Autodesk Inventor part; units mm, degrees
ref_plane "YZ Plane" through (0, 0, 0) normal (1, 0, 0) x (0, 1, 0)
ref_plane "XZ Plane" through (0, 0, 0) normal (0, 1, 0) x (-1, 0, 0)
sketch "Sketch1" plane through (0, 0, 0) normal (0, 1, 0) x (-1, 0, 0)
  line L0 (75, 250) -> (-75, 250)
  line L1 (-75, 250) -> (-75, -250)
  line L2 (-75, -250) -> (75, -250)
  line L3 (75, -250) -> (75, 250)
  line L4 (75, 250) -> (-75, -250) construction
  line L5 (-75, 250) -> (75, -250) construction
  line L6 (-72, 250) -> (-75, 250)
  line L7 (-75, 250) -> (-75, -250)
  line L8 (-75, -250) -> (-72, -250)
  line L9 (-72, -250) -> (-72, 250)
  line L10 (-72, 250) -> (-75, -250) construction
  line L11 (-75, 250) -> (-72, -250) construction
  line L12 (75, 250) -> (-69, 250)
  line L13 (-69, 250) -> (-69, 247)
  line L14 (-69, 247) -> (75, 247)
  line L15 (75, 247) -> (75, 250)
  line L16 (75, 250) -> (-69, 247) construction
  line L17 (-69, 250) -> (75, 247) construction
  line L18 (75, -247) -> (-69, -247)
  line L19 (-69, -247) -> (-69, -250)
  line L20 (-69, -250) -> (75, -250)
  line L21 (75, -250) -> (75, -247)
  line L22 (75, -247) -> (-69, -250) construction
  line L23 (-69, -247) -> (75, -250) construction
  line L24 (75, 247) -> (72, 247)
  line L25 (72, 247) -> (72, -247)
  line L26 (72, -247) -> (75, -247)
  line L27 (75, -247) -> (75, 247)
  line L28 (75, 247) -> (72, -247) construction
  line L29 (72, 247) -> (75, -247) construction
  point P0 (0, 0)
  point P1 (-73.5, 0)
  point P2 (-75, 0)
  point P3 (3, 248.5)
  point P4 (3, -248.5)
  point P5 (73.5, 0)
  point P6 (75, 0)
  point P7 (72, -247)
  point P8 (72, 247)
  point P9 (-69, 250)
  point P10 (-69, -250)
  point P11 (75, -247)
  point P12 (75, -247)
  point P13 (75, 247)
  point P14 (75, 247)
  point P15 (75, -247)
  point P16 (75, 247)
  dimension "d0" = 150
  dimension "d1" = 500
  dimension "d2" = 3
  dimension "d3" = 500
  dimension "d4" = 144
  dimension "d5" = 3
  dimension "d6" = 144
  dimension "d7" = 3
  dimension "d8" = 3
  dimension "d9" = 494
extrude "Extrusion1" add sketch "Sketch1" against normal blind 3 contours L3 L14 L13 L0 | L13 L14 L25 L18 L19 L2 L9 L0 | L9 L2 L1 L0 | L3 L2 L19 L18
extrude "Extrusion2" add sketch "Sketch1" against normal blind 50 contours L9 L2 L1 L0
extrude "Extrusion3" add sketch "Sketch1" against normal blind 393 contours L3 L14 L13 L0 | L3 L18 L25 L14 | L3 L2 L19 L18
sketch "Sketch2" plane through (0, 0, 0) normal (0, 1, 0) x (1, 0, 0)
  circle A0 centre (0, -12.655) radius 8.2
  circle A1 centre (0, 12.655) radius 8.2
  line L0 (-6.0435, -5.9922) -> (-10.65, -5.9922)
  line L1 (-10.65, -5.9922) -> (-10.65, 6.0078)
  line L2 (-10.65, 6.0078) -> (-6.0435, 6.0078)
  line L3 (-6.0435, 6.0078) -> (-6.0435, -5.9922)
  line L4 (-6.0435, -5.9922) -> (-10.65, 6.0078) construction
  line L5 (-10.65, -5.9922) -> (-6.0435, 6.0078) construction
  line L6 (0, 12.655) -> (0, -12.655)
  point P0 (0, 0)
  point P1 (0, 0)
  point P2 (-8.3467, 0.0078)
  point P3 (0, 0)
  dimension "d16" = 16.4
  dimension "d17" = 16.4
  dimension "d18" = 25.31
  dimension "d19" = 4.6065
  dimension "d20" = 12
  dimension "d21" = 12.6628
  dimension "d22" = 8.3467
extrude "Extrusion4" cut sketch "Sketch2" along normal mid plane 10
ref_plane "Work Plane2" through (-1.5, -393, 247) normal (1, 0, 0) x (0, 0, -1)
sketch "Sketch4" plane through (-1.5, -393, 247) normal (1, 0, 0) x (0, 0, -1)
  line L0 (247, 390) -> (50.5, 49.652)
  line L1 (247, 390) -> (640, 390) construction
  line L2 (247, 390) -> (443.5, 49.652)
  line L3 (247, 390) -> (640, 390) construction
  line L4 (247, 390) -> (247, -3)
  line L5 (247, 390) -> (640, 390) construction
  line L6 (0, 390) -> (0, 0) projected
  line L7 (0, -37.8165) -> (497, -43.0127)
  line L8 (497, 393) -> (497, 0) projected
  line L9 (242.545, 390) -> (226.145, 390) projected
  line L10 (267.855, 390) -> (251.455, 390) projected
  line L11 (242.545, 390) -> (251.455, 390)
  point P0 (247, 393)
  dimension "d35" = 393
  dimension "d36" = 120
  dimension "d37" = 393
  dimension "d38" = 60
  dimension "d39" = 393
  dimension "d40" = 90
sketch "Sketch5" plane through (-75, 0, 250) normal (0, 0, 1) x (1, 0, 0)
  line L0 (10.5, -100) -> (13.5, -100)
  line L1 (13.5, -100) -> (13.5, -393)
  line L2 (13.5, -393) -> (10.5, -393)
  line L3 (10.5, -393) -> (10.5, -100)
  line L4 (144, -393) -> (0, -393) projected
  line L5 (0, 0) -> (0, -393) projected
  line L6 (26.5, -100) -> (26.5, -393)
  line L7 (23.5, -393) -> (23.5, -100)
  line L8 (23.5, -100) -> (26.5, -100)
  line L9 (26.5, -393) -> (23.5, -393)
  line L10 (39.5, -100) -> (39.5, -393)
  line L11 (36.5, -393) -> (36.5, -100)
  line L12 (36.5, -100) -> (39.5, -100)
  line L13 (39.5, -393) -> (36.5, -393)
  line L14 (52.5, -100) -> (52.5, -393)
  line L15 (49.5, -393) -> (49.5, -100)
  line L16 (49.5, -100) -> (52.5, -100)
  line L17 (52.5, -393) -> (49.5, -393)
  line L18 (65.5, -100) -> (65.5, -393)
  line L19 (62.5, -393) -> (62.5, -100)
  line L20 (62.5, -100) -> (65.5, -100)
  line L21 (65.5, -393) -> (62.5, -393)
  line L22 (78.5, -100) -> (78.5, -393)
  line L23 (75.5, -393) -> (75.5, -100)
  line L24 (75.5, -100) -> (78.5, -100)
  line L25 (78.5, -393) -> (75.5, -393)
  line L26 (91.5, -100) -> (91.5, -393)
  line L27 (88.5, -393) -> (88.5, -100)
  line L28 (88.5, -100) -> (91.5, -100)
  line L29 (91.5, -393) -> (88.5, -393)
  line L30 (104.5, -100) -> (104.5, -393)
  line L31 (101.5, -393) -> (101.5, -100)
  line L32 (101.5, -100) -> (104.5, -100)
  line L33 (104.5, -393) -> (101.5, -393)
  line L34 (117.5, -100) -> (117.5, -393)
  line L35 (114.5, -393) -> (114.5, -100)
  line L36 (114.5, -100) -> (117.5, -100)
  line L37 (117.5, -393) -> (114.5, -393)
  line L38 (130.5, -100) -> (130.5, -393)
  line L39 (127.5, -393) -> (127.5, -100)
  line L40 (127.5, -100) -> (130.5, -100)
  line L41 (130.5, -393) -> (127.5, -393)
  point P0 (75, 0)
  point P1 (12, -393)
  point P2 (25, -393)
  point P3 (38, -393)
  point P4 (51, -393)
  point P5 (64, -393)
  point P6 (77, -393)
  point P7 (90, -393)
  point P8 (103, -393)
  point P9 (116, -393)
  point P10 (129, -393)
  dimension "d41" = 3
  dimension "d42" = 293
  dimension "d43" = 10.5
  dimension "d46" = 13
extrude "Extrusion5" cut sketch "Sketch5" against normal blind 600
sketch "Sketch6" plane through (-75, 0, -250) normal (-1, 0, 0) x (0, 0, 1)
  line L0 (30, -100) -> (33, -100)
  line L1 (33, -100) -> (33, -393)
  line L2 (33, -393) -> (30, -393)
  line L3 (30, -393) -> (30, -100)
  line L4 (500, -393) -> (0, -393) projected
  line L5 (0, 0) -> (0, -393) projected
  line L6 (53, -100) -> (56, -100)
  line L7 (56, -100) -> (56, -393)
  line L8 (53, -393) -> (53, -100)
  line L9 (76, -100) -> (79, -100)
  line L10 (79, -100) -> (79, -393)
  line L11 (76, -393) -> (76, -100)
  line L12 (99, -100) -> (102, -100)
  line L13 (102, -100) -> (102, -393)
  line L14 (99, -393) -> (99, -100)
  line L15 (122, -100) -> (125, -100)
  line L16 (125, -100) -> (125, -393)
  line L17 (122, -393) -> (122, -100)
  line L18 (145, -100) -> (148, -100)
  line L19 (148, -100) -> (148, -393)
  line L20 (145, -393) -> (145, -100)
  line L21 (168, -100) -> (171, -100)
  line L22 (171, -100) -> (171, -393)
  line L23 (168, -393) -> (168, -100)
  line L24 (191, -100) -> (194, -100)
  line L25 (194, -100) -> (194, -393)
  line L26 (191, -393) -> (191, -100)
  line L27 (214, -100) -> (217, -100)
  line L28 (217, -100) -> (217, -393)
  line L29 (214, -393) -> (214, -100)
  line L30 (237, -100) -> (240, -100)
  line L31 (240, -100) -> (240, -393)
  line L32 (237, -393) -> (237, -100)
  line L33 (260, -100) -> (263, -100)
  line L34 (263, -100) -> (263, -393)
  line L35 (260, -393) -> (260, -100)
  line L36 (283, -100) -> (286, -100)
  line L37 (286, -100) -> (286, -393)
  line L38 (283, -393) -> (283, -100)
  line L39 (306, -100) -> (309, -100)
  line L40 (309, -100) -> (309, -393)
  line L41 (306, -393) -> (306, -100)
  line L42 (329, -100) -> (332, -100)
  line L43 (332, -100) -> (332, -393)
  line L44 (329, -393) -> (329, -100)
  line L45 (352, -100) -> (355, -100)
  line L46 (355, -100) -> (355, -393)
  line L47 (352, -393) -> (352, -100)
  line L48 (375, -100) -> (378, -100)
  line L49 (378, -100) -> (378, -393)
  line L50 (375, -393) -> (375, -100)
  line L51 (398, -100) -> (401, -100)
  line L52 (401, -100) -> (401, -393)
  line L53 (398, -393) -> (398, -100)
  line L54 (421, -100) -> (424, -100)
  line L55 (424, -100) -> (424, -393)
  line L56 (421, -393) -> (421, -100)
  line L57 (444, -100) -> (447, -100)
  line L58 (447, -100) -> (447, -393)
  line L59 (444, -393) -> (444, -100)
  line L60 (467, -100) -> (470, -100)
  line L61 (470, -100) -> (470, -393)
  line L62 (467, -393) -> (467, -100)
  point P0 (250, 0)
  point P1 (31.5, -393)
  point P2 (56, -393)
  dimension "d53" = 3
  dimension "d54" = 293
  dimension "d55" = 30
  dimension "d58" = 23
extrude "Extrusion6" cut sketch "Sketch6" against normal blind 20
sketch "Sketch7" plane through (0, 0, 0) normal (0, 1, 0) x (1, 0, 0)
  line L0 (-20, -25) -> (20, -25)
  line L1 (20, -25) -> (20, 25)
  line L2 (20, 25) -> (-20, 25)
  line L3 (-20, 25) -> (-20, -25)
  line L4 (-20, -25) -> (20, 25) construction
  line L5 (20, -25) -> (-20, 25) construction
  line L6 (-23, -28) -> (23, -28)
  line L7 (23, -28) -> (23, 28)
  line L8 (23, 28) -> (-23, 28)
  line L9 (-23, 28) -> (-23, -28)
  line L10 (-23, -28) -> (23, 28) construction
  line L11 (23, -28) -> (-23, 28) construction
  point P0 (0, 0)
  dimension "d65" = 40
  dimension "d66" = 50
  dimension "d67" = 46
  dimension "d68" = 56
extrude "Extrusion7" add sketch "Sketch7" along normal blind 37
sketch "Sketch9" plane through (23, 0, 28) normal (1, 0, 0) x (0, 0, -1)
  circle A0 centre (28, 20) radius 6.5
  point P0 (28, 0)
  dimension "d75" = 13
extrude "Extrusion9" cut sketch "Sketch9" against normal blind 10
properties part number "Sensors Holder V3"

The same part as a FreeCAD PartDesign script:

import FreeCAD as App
import Part
import Sketcher
from FreeCAD import Vector


def add_polygon(sketch, points):
    """Adds a closed chain of lines whose ends are joined by coincident constraints."""
    first, n = sketch.GeometryCount, len(points)
    for a, b in zip(points, points[1:] + points[:1]):
        sketch.addGeometry(Part.LineSegment(App.Vector(*a, 0), App.Vector(*b, 0)), False)
    for i in range(n):
        sketch.addConstraint(Sketcher.Constraint("Coincident", first + i, 2, first + (i + 1) % n, 1))

doc = App.newDocument("Part")
params = doc.addObject("Spreadsheet::Sheet", "Params")
for row, (alias, value) in enumerate([
    ("sketch1_width", "150 mm"),
    ("sketch1_width2", "3 mm"),
    ("sketch1_height", "500 mm"),
    ("pad1_length", "3 mm"),
    ("sketch2_width", "3 mm"),
    ("sketch2_height", "500 mm"),
    ("pad2_length", "50 mm"),
    ("sketch3_width", "144 mm"),
    ("sketch3_height", "3 mm"),
    ("sketch3_height2", "494 mm"),
    ("pad3_length", "393 mm"),
    ("sketch4_diameter", "16.4 mm"),
    ("sketch4_height", "12 mm"),
    ("pocket1_length", "10 mm"),
    ("sketch5_width", "3 mm"),
    ("sketch5_height", "293 mm"),
    ("pocket2_length", "600 mm"),
    ("sketch6_width", "293 mm"),
    ("sketch6_height", "3 mm"),
    ("pocket3_length", "20 mm"),
    ("sketch7_width", "46 mm"),
    ("sketch7_width2", "40 mm"),
    ("sketch7_height", "56 mm"),
    ("sketch7_height2", "50 mm"),
    ("pad4_length", "37 mm"),
    ("sketch8_diameter", "13 mm"),
    ("pocket4_length", "10 mm"),
], start=1):
    params.set(f"A{row}", alias)
    params.set(f"B{row}", "=" + value)
    params.setAlias(f"B{row}", alias)

body = doc.addObject("PartDesign::Body", "Body")

# Sketch on XZ plane
sketch1 = doc.addObject("Sketcher::SketchObject", "Sketch")
body.addObject(sketch1)
sketch1.AttachmentSupport = (doc.XZ_Plane, [""])
sketch1.MapMode = "FlatFace"
add_polygon(sketch1, [(-75, 247), (-75, 250), (75, 250), (75, -250), (-75, -250), (-75, -247), (-72, -247), (-72, 247)])  # lines 0-7
sketch1.addConstraint(Sketcher.Constraint("Vertical", 0))
sketch1.addConstraint(Sketcher.Constraint("Horizontal", 1))
sketch1.addConstraint(Sketcher.Constraint("Vertical", 2))
sketch1.addConstraint(Sketcher.Constraint("Horizontal", 3))
sketch1.addConstraint(Sketcher.Constraint("Vertical", 4))
sketch1.addConstraint(Sketcher.Constraint("Horizontal", 5))
sketch1.addConstraint(Sketcher.Constraint("Vertical", 6))
sketch1.addConstraint(Sketcher.Constraint("Horizontal", 7))
sketch1.addConstraint(Sketcher.Constraint("Symmetric", 0, 2, 2, 2, -1, 1))
sketch1.addConstraint(Sketcher.Constraint("Symmetric", 4, 2, 7, 2, -1))
sketch1.addConstraint(Sketcher.Constraint("Equal", 7, 0))
sketch1.addConstraint(Sketcher.Constraint("DistanceX", 1, 1, 1, 2, 150.0))
sketch1.addConstraint(Sketcher.Constraint("DistanceX", 5, 1, 5, 2, 3.0))
sketch1.addConstraint(Sketcher.Constraint("DistanceY", 2, 2, 2, 1, 500.0))
sketch1.setExpression("Constraints[19]", "Params.sketch1_width")
sketch1.setExpression("Constraints[20]", "Params.sketch1_width2")
sketch1.setExpression("Constraints[21]", "Params.sketch1_height")
pad1 = doc.addObject("PartDesign::Pad", "Pad")
body.addObject(pad1)
pad1.Profile = sketch1
pad1.setExpression("Length", "Params.pad1_length")

# Sketch on XZ plane
sketch2 = doc.addObject("Sketcher::SketchObject", "Sketch001")
body.addObject(sketch2)
sketch2.AttachmentSupport = (doc.XZ_Plane, [""])
sketch2.MapMode = "FlatFace"
add_polygon(sketch2, [(72, -250), (72, 250), (75, 250), (75, -250)])  # lines 0-3
sketch2.addConstraint(Sketcher.Constraint("Vertical", 0))
sketch2.addConstraint(Sketcher.Constraint("Horizontal", 1))
sketch2.addConstraint(Sketcher.Constraint("Vertical", 2))
sketch2.addConstraint(Sketcher.Constraint("Horizontal", 3))
sketch2.addConstraint(Sketcher.Constraint("DistanceX", 1, 1, 1, 2, 3.0))
sketch2.addConstraint(Sketcher.Constraint("DistanceY", 0, 1, 0, 2, 500.0))
sketch2.addConstraint(Sketcher.Constraint("DistanceX", -1, 1, 0, 2, 72.0))
sketch2.addConstraint(Sketcher.Constraint("DistanceY", -1, 1, 0, 2, 250.0))
sketch2.setExpression("Constraints[8]", "Params.sketch2_width")
sketch2.setExpression("Constraints[9]", "Params.sketch2_height")
pad2 = doc.addObject("PartDesign::Pad", "Pad001")
body.addObject(pad2)
pad2.Profile = sketch2
pad2.setExpression("Length", "Params.pad2_length")

# Sketch on XZ plane
sketch3 = doc.addObject("Sketcher::SketchObject", "Sketch002")
body.addObject(sketch3)
sketch3.AttachmentSupport = (doc.XZ_Plane, [""])
sketch3.MapMode = "FlatFace"
add_polygon(sketch3, [(-75, 250), (69, 250), (69, 247), (-72, 247), (-72, -247), (69, -247), (69, -250), (-75, -250)])  # lines 0-7
sketch3.addConstraint(Sketcher.Constraint("Horizontal", 0))
sketch3.addConstraint(Sketcher.Constraint("Vertical", 1))
sketch3.addConstraint(Sketcher.Constraint("Horizontal", 2))
sketch3.addConstraint(Sketcher.Constraint("Vertical", 3))
sketch3.addConstraint(Sketcher.Constraint("Horizontal", 4))
sketch3.addConstraint(Sketcher.Constraint("Vertical", 5))
sketch3.addConstraint(Sketcher.Constraint("Horizontal", 6))
sketch3.addConstraint(Sketcher.Constraint("Vertical", 7))
sketch3.addConstraint(Sketcher.Constraint("Symmetric", 1, 2, 4, 2, -1))
sketch3.addConstraint(Sketcher.Constraint("Equal", 1, 5))
sketch3.addConstraint(Sketcher.Constraint("DistanceX", 0, 1, 0, 2, 144.0))
sketch3.addConstraint(Sketcher.Constraint("DistanceY", 1, 2, 1, 1, 3.0))
sketch3.addConstraint(Sketcher.Constraint("DistanceY", 3, 2, 3, 1, 494.0))
sketch3.addConstraint(Sketcher.Constraint("DistanceX", 6, 2, 3, 2, 3.0))
sketch3.addConstraint(Sketcher.Constraint("DistanceX", -1, 1, 0, 2, 69.0))
sketch3.setExpression("Constraints[18]", "Params.sketch3_width")
sketch3.setExpression("Constraints[19]", "Params.sketch3_height")
sketch3.setExpression("Constraints[20]", "Params.sketch3_height2")
pad3 = doc.addObject("PartDesign::Pad", "Pad002")
body.addObject(pad3)
pad3.Profile = sketch3
pad3.setExpression("Length", "Params.pad3_length")

# Sketch on XZ plane
sketch4 = doc.addObject("Sketcher::SketchObject", "Sketch003")
body.addObject(sketch4)
sketch4.AttachmentSupport = (doc.XZ_Plane, [""])
sketch4.MapMode = "FlatFace"
sketch4.addGeometry(Part.Circle(Vector(0, 12.7, 0), Vector(0, 0, 1), 8.2), False)  # 0
sketch4.addGeometry(Part.Circle(Vector(0, -12.7, 0), Vector(0, 0, 1), 8.2), False)  # 1
add_polygon(sketch4, [(-10.7, 6), (-6, 6), (-6, -6), (-10.7, -6)])  # lines 2-5
sketch4.addConstraint(Sketcher.Constraint("Horizontal", 2))
sketch4.addConstraint(Sketcher.Constraint("Vertical", 3))
sketch4.addConstraint(Sketcher.Constraint("Horizontal", 4))
sketch4.addConstraint(Sketcher.Constraint("Vertical", 5))
sketch4.addConstraint(Sketcher.Constraint("Equal", 0, 1))
sketch4.addConstraint(Sketcher.Constraint("Symmetric", 0, 3, 1, 3, -1, 1))
sketch4.addConstraint(Sketcher.Constraint("PointOnObject", 0, 3, -2))
sketch4.addConstraint(Sketcher.Constraint("Diameter", 0, 16.4))
sketch4.addConstraint(Sketcher.Constraint("DistanceY", 3, 2, 3, 1, 12.0))
sketch4.addConstraint(Sketcher.Constraint("DistanceY", 1, 3, 0, 3, 25.31))
sketch4.addConstraint(Sketcher.Constraint("DistanceX", 2, 1, 2, 2, 4.6065))
sketch4.addConstraint(Sketcher.Constraint("DistanceX", 4, 2, -1, 1, 10.65))
sketch4.addConstraint(Sketcher.Constraint("DistanceY", -1, 1, 2, 2, 5.9922))
sketch4.setExpression("Constraints[11]", "Params.sketch4_diameter")
sketch4.setExpression("Constraints[12]", "Params.sketch4_height")
pocket1 = doc.addObject("PartDesign::Pocket", "Pocket")
body.addObject(pocket1)
pocket1.Profile = sketch4
pocket1.setExpression("Length", "Params.pocket1_length")
pocket1.Midplane = True

# Sketch on XY plane
sketch5 = doc.addObject("Sketcher::SketchObject", "Sketch004")
body.addObject(sketch5)
sketch5.AttachmentSupport = (doc.XY_Plane, [""])
sketch5.MapMode = "FlatFace"
sketch5.AttachmentOffset = App.Placement(Vector(0, 0, 250), App.Rotation())
add_polygon(sketch5, [(52.5, -100), (52.5, -393), (55.5, -393), (55.5, -100)])  # lines 0-3
add_polygon(sketch5, [(39.5, -100), (39.5, -393), (42.5, -393), (42.5, -100)])  # lines 4-7
add_polygon(sketch5, [(26.5, -100), (26.5, -393), (29.5, -393), (29.5, -100)])  # lines 8-11
add_polygon(sketch5, [(13.5, -100), (13.5, -393), (16.5, -393), (16.5, -100)])  # lines 12-15
add_polygon(sketch5, [(0.5, -100), (0.5, -393), (3.5, -393), (3.5, -100)])  # lines 16-19
add_polygon(sketch5, [(-12.5, -100), (-12.5, -393), (-9.5, -393), (-9.5, -100)])  # lines 20-23
add_polygon(sketch5, [(-25.5, -100), (-25.5, -393), (-22.5, -393), (-22.5, -100)])  # lines 24-27
add_polygon(sketch5, [(-38.5, -100), (-38.5, -393), (-35.5, -393), (-35.5, -100)])  # lines 28-31
add_polygon(sketch5, [(-51.5, -100), (-51.5, -393), (-48.5, -393), (-48.5, -100)])  # lines 32-35
add_polygon(sketch5, [(-61.5, -100), (-64.5, -100), (-64.5, -393), (-61.5, -393)])  # lines 36-39
sketch5.addConstraint(Sketcher.Constraint("Vertical", 0))
sketch5.addConstraint(Sketcher.Constraint("Horizontal", 1))
sketch5.addConstraint(Sketcher.Constraint("Vertical", 2))
sketch5.addConstraint(Sketcher.Constraint("Horizontal", 3))
sketch5.addConstraint(Sketcher.Constraint("Vertical", 4))
sketch5.addConstraint(Sketcher.Constraint("Horizontal", 5))
sketch5.addConstraint(Sketcher.Constraint("Vertical", 6))
sketch5.addConstraint(Sketcher.Constraint("Horizontal", 7))
sketch5.addConstraint(Sketcher.Constraint("Vertical", 8))
sketch5.addConstraint(Sketcher.Constraint("Horizontal", 9))
sketch5.addConstraint(Sketcher.Constraint("Vertical", 10))
sketch5.addConstraint(Sketcher.Constraint("Horizontal", 11))
sketch5.addConstraint(Sketcher.Constraint("Vertical", 12))
sketch5.addConstraint(Sketcher.Constraint("Horizontal", 13))
sketch5.addConstraint(Sketcher.Constraint("Vertical", 14))
sketch5.addConstraint(Sketcher.Constraint("Horizontal", 15))
sketch5.addConstraint(Sketcher.Constraint("Vertical", 16))
sketch5.addConstraint(Sketcher.Constraint("Horizontal", 17))
sketch5.addConstraint(Sketcher.Constraint("Vertical", 18))
sketch5.addConstraint(Sketcher.Constraint("Horizontal", 19))
sketch5.addConstraint(Sketcher.Constraint("Vertical", 20))
sketch5.addConstraint(Sketcher.Constraint("Horizontal", 21))
sketch5.addConstraint(Sketcher.Constraint("Vertical", 22))
sketch5.addConstraint(Sketcher.Constraint("Horizontal", 23))
sketch5.addConstraint(Sketcher.Constraint("Vertical", 24))
sketch5.addConstraint(Sketcher.Constraint("Horizontal", 25))
sketch5.addConstraint(Sketcher.Constraint("Vertical", 26))
sketch5.addConstraint(Sketcher.Constraint("Horizontal", 27))
sketch5.addConstraint(Sketcher.Constraint("Vertical", 28))
sketch5.addConstraint(Sketcher.Constraint("Horizontal", 29))
sketch5.addConstraint(Sketcher.Constraint("Vertical", 30))
sketch5.addConstraint(Sketcher.Constraint("Horizontal", 31))
sketch5.addConstraint(Sketcher.Constraint("Vertical", 32))
sketch5.addConstraint(Sketcher.Constraint("Horizontal", 33))
sketch5.addConstraint(Sketcher.Constraint("Vertical", 34))
sketch5.addConstraint(Sketcher.Constraint("Horizontal", 35))
sketch5.addConstraint(Sketcher.Constraint("Horizontal", 36))
sketch5.addConstraint(Sketcher.Constraint("Vertical", 37))
sketch5.addConstraint(Sketcher.Constraint("Horizontal", 38))
sketch5.addConstraint(Sketcher.Constraint("Vertical", 39))
sketch5.addConstraint(Sketcher.Constraint("Horizontal", 1, 2, 4, 2))
sketch5.addConstraint(Sketcher.Constraint("Horizontal", 3, 2, 6, 2))
sketch5.addConstraint(Sketcher.Constraint("Horizontal", 5, 2, 8, 2))
sketch5.addConstraint(Sketcher.Constraint("Horizontal", 7, 2, 10, 2))
sketch5.addConstraint(Sketcher.Constraint("Horizontal", 9, 2, 12, 2))
sketch5.addConstraint(Sketcher.Constraint("Horizontal", 11, 2, 14, 2))
sketch5.addConstraint(Sketcher.Constraint("Horizontal", 13, 2, 16, 2))
sketch5.addConstraint(Sketcher.Constraint("Horizontal", 15, 2, 18, 2))
sketch5.addConstraint(Sketcher.Constraint("Horizontal", 17, 2, 20, 2))
sketch5.addConstraint(Sketcher.Constraint("Horizontal", 19, 2, 22, 2))
sketch5.addConstraint(Sketcher.Constraint("Horizontal", 21, 2, 24, 2))
sketch5.addConstraint(Sketcher.Constraint("Horizontal", 23, 2, 26, 2))
sketch5.addConstraint(Sketcher.Constraint("Horizontal", 25, 2, 28, 2))
sketch5.addConstraint(Sketcher.Constraint("Horizontal", 27, 2, 30, 2))
sketch5.addConstraint(Sketcher.Constraint("Horizontal", 29, 2, 32, 2))
sketch5.addConstraint(Sketcher.Constraint("Horizontal", 31, 2, 34, 2))
sketch5.addConstraint(Sketcher.Constraint("Horizontal", 35, 2, 36, 2))
sketch5.addConstraint(Sketcher.Constraint("Horizontal", 33, 2, 37, 2))
sketch5.addConstraint(Sketcher.Constraint("Equal", 3, 5))
sketch5.addConstraint(Sketcher.Constraint("Equal", 7, 9))
sketch5.addConstraint(Sketcher.Constraint("Equal", 11, 13))
sketch5.addConstraint(Sketcher.Constraint("Equal", 15, 17))
sketch5.addConstraint(Sketcher.Constraint("Equal", 19, 21))
sketch5.addConstraint(Sketcher.Constraint("Equal", 23, 25))
sketch5.addConstraint(Sketcher.Constraint("Equal", 27, 29))
sketch5.addConstraint(Sketcher.Constraint("Equal", 31, 33))
sketch5.addConstraint(Sketcher.Constraint("Equal", 35, 36))
sketch5.addConstraint(Sketcher.Constraint("DistanceX", 1, 1, 1, 2, 3.0))
sketch5.addConstraint(Sketcher.Constraint("DistanceY", 0, 2, 0, 1, 293.0))
sketch5.addConstraint(Sketcher.Constraint("DistanceX", 4, 2, 0, 2, 13.0))
sketch5.addConstraint(Sketcher.Constraint("DistanceX", 8, 2, 4, 2, 13.0))
sketch5.addConstraint(Sketcher.Constraint("DistanceX", 12, 2, 8, 2, 13.0))
sketch5.addConstraint(Sketcher.Constraint("DistanceX", 16, 2, 12, 2, 13.0))
sketch5.addConstraint(Sketcher.Constraint("DistanceX", 20, 2, 16, 2, 13.0))
sketch5.addConstraint(Sketcher.Constraint("DistanceX", 24, 2, 20, 2, 13.0))
sketch5.addConstraint(Sketcher.Constraint("DistanceX", 28, 2, 24, 2, 13.0))
sketch5.addConstraint(Sketcher.Constraint("DistanceX", 32, 2, 28, 2, 13.0))
sketch5.addConstraint(Sketcher.Constraint("DistanceX", 36, 2, 35, 2, 13.0))
sketch5.addConstraint(Sketcher.Constraint("DistanceY", 0, 2, -1, 1, 393.0))
sketch5.addConstraint(Sketcher.Constraint("DistanceX", -1, 1, 0, 2, 52.5))
sketch5.setExpression("Constraints[107]", "Params.sketch5_width")
sketch5.setExpression("Constraints[108]", "Params.sketch5_height")
pocket2 = doc.addObject("PartDesign::Pocket", "Pocket001")
body.addObject(pocket2)
pocket2.Profile = sketch5
pocket2.setExpression("Length", "Params.pocket2_length")

# Sketch on YZ plane
sketch6 = doc.addObject("Sketcher::SketchObject", "Sketch005")
body.addObject(sketch6)
sketch6.AttachmentSupport = (doc.YZ_Plane, [""])
sketch6.MapMode = "FlatFace"
sketch6.AttachmentOffset = App.Placement(Vector(0, 0, -75), App.Rotation())
add_polygon(sketch6, [(-100, 217), (-393, 217), (-393, 220), (-100, 220)])  # lines 0-3
add_polygon(sketch6, [(-100, 194), (-393, 194), (-393, 197), (-100, 197)])  # lines 4-7
add_polygon(sketch6, [(-100, 171), (-393, 171), (-393, 174), (-100, 174)])  # lines 8-11
add_polygon(sketch6, [(-100, 148), (-393, 148), (-393, 151), (-100, 151)])  # lines 12-15
add_polygon(sketch6, [(-100, 125), (-393, 125), (-393, 128), (-100, 128)])  # lines 16-19
add_polygon(sketch6, [(-100, 102), (-393, 102), (-393, 105), (-100, 105)])  # lines 20-23
add_polygon(sketch6, [(-100, 79), (-393, 79), (-393, 82), (-100, 82)])  # lines 24-27
add_polygon(sketch6, [(-100, 56), (-393, 56), (-393, 59), (-100, 59)])  # lines 28-31
add_polygon(sketch6, [(-100, 33), (-393, 33), (-393, 36), (-100, 36)])  # lines 32-35
add_polygon(sketch6, [(-100, 10), (-393, 10), (-393, 13), (-100, 13)])  # lines 36-39
add_polygon(sketch6, [(-100, -13), (-393, -13), (-393, -10), (-100, -10)])  # lines 40-43
add_polygon(sketch6, [(-100, -36), (-393, -36), (-393, -33), (-100, -33)])  # lines 44-47
add_polygon(sketch6, [(-100, -59), (-393, -59), (-393, -56), (-100, -56)])  # lines 48-51
add_polygon(sketch6, [(-100, -82), (-393, -82), (-393, -79), (-100, -79)])  # lines 52-55
add_polygon(sketch6, [(-100, -105), (-393, -105), (-393, -102), (-100, -102)])  # lines 56-59
add_polygon(sketch6, [(-100, -128), (-393, -128), (-393, -125), (-100, -125)])  # lines 60-63
add_polygon(sketch6, [(-100, -151), (-393, -151), (-393, -148), (-100, -148)])  # lines 64-67
add_polygon(sketch6, [(-100, -174), (-393, -174), (-393, -171), (-100, -171)])  # lines 68-71
add_polygon(sketch6, [(-100, -197), (-393, -197), (-393, -194), (-100, -194)])  # lines 72-75
add_polygon(sketch6, [(-100, -217), (-100, -220), (-393, -220), (-393, -217)])  # lines 76-79
sketch6.addConstraint(Sketcher.Constraint("Horizontal", 0))
sketch6.addConstraint(Sketcher.Constraint("Vertical", 1))
sketch6.addConstraint(Sketcher.Constraint("Horizontal", 2))
sketch6.addConstraint(Sketcher.Constraint("Vertical", 3))
sketch6.addConstraint(Sketcher.Constraint("Horizontal", 4))
sketch6.addConstraint(Sketcher.Constraint("Vertical", 5))
sketch6.addConstraint(Sketcher.Constraint("Horizontal", 6))
sketch6.addConstraint(Sketcher.Constraint("Vertical", 7))
sketch6.addConstraint(Sketcher.Constraint("Horizontal", 8))
sketch6.addConstraint(Sketcher.Constraint("Vertical", 9))
sketch6.addConstraint(Sketcher.Constraint("Horizontal", 10))
sketch6.addConstraint(Sketcher.Constraint("Vertical", 11))
sketch6.addConstraint(Sketcher.Constraint("Horizontal", 12))
sketch6.addConstraint(Sketcher.Constraint("Vertical", 13))
sketch6.addConstraint(Sketcher.Constraint("Horizontal", 14))
sketch6.addConstraint(Sketcher.Constraint("Vertical", 15))
sketch6.addConstraint(Sketcher.Constraint("Horizontal", 16))
sketch6.addConstraint(Sketcher.Constraint("Vertical", 17))
sketch6.addConstraint(Sketcher.Constraint("Horizontal", 18))
sketch6.addConstraint(Sketcher.Constraint("Vertical", 19))
sketch6.addConstraint(Sketcher.Constraint("Horizontal", 20))
sketch6.addConstraint(Sketcher.Constraint("Vertical", 21))
sketch6.addConstraint(Sketcher.Constraint("Horizontal", 22))
sketch6.addConstraint(Sketcher.Constraint("Vertical", 23))
sketch6.addConstraint(Sketcher.Constraint("Horizontal", 24))
sketch6.addConstraint(Sketcher.Constraint("Vertical", 25))
sketch6.addConstraint(Sketcher.Constraint("Horizontal", 26))
sketch6.addConstraint(Sketcher.Constraint("Vertical", 27))
sketch6.addConstraint(Sketcher.Constraint("Horizontal", 28))
sketch6.addConstraint(Sketcher.Constraint("Vertical", 29))
sketch6.addConstraint(Sketcher.Constraint("Horizontal", 30))
sketch6.addConstraint(Sketcher.Constraint("Vertical", 31))
sketch6.addConstraint(Sketcher.Constraint("Horizontal", 32))
sketch6.addConstraint(Sketcher.Constraint("Vertical", 33))
sketch6.addConstraint(Sketcher.Constraint("Horizontal", 34))
sketch6.addConstraint(Sketcher.Constraint("Vertical", 35))
sketch6.addConstraint(Sketcher.Constraint("Horizontal", 36))
sketch6.addConstraint(Sketcher.Constraint("Vertical", 37))
sketch6.addConstraint(Sketcher.Constraint("Horizontal", 38))
sketch6.addConstraint(Sketcher.Constraint("Vertical", 39))
sketch6.addConstraint(Sketcher.Constraint("Horizontal", 40))
sketch6.addConstraint(Sketcher.Constraint("Vertical", 41))
sketch6.addConstraint(Sketcher.Constraint("Horizontal", 42))
sketch6.addConstraint(Sketcher.Constraint("Vertical", 43))
sketch6.addConstraint(Sketcher.Constraint("Horizontal", 44))
sketch6.addConstraint(Sketcher.Constraint("Vertical", 45))
sketch6.addConstraint(Sketcher.Constraint("Horizontal", 46))
sketch6.addConstraint(Sketcher.Constraint("Vertical", 47))
sketch6.addConstraint(Sketcher.Constraint("Horizontal", 48))
sketch6.addConstraint(Sketcher.Constraint("Vertical", 49))
sketch6.addConstraint(Sketcher.Constraint("Horizontal", 50))
sketch6.addConstraint(Sketcher.Constraint("Vertical", 51))
sketch6.addConstraint(Sketcher.Constraint("Horizontal", 52))
sketch6.addConstraint(Sketcher.Constraint("Vertical", 53))
sketch6.addConstraint(Sketcher.Constraint("Horizontal", 54))
sketch6.addConstraint(Sketcher.Constraint("Vertical", 55))
sketch6.addConstraint(Sketcher.Constraint("Horizontal", 56))
sketch6.addConstraint(Sketcher.Constraint("Vertical", 57))
sketch6.addConstraint(Sketcher.Constraint("Horizontal", 58))
sketch6.addConstraint(Sketcher.Constraint("Vertical", 59))
sketch6.addConstraint(Sketcher.Constraint("Horizontal", 60))
sketch6.addConstraint(Sketcher.Constraint("Vertical", 61))
sketch6.addConstraint(Sketcher.Constraint("Horizontal", 62))
sketch6.addConstraint(Sketcher.Constraint("Vertical", 63))
sketch6.addConstraint(Sketcher.Constraint("Horizontal", 64))
sketch6.addConstraint(Sketcher.Constraint("Vertical", 65))
sketch6.addConstraint(Sketcher.Constraint("Horizontal", 66))
sketch6.addConstraint(Sketcher.Constraint("Vertical", 67))
sketch6.addConstraint(Sketcher.Constraint("Horizontal", 68))
sketch6.addConstraint(Sketcher.Constraint("Vertical", 69))
sketch6.addConstraint(Sketcher.Constraint("Horizontal", 70))
sketch6.addConstraint(Sketcher.Constraint("Vertical", 71))
sketch6.addConstraint(Sketcher.Constraint("Horizontal", 72))
sketch6.addConstraint(Sketcher.Constraint("Vertical", 73))
sketch6.addConstraint(Sketcher.Constraint("Horizontal", 74))
sketch6.addConstraint(Sketcher.Constraint("Vertical", 75))
sketch6.addConstraint(Sketcher.Constraint("Vertical", 76))
sketch6.addConstraint(Sketcher.Constraint("Horizontal", 77))
sketch6.addConstraint(Sketcher.Constraint("Vertical", 78))
sketch6.addConstraint(Sketcher.Constraint("Horizontal", 79))
sketch6.addConstraint(Sketcher.Constraint("Symmetric", 37, 2, 40, 2, -1))
sketch6.addConstraint(Sketcher.Constraint("Symmetric", 39, 2, 42, 2, -1))
sketch6.addConstraint(Sketcher.Constraint("Symmetric", 33, 2, 44, 2, -1))
sketch6.addConstraint(Sketcher.Constraint("Symmetric", 35, 2, 46, 2, -1))
sketch6.addConstraint(Sketcher.Constraint("Symmetric", 29, 2, 48, 2, -1))
sketch6.addConstraint(Sketcher.Constraint("Symmetric", 31, 2, 50, 2, -1))
sketch6.addConstraint(Sketcher.Constraint("Symmetric", 25, 2, 52, 2, -1))
sketch6.addConstraint(Sketcher.Constraint("Symmetric", 27, 2, 54, 2, -1))
sketch6.addConstraint(Sketcher.Constraint("Symmetric", 21, 2, 56, 2, -1))
sketch6.addConstraint(Sketcher.Constraint("Symmetric", 23, 2, 58, 2, -1))
sketch6.addConstraint(Sketcher.Constraint("Symmetric", 17, 2, 60, 2, -1))
sketch6.addConstraint(Sketcher.Constraint("Symmetric", 19, 2, 62, 2, -1))
sketch6.addConstraint(Sketcher.Constraint("Symmetric", 13, 2, 64, 2, -1))
sketch6.addConstraint(Sketcher.Constraint("Symmetric", 15, 2, 66, 2, -1))
sketch6.addConstraint(Sketcher.Constraint("Symmetric", 9, 2, 68, 2, -1))
sketch6.addConstraint(Sketcher.Constraint("Symmetric", 11, 2, 70, 2, -1))
sketch6.addConstraint(Sketcher.Constraint("Symmetric", 5, 2, 72, 2, -1))
sketch6.addConstraint(Sketcher.Constraint("Symmetric", 7, 2, 74, 2, -1))
sketch6.addConstraint(Sketcher.Constraint("Symmetric", 2, 2, 76, 2, -1))
sketch6.addConstraint(Sketcher.Constraint("Symmetric", 0, 2, 78, 2, -1))
sketch6.addConstraint(Sketcher.Constraint("Vertical", 1, 2, 4, 2))
sketch6.addConstraint(Sketcher.Constraint("Vertical", 3, 2, 6, 2))
sketch6.addConstraint(Sketcher.Constraint("Vertical", 5, 2, 8, 2))
sketch6.addConstraint(Sketcher.Constraint("Vertical", 7, 2, 10, 2))
sketch6.addConstraint(Sketcher.Constraint("Vertical", 9, 2, 12, 2))
sketch6.addConstraint(Sketcher.Constraint("Vertical", 11, 2, 14, 2))
sketch6.addConstraint(Sketcher.Constraint("Vertical", 13, 2, 16, 2))
sketch6.addConstraint(Sketcher.Constraint("Vertical", 15, 2, 18, 2))
sketch6.addConstraint(Sketcher.Constraint("Vertical", 17, 2, 20, 2))
sketch6.addConstraint(Sketcher.Constraint("Vertical", 19, 2, 22, 2))
sketch6.addConstraint(Sketcher.Constraint("Vertical", 21, 2, 24, 2))
sketch6.addConstraint(Sketcher.Constraint("Vertical", 23, 2, 26, 2))
sketch6.addConstraint(Sketcher.Constraint("Vertical", 25, 2, 28, 2))
sketch6.addConstraint(Sketcher.Constraint("Vertical", 27, 2, 30, 2))
sketch6.addConstraint(Sketcher.Constraint("Vertical", 29, 2, 32, 2))
sketch6.addConstraint(Sketcher.Constraint("Vertical", 31, 2, 34, 2))
sketch6.addConstraint(Sketcher.Constraint("Vertical", 33, 2, 36, 2))
sketch6.addConstraint(Sketcher.Constraint("Vertical", 35, 2, 38, 2))
sketch6.addConstraint(Sketcher.Constraint("Equal", 3, 5))
sketch6.addConstraint(Sketcher.Constraint("Equal", 7, 9))
sketch6.addConstraint(Sketcher.Constraint("Equal", 11, 13))
sketch6.addConstraint(Sketcher.Constraint("Equal", 15, 17))
sketch6.addConstraint(Sketcher.Constraint("Equal", 19, 21))
sketch6.addConstraint(Sketcher.Constraint("Equal", 23, 25))
sketch6.addConstraint(Sketcher.Constraint("Equal", 27, 29))
sketch6.addConstraint(Sketcher.Constraint("Equal", 31, 33))
sketch6.addConstraint(Sketcher.Constraint("Equal", 35, 37))
sketch6.addConstraint(Sketcher.Constraint("DistanceX", 0, 2, 0, 1, 293.0))
sketch6.addConstraint(Sketcher.Constraint("DistanceY", 1, 1, 1, 2, 3.0))
sketch6.addConstraint(Sketcher.Constraint("DistanceY", -1, 1, 36, 2, 10.0))
sketch6.addConstraint(Sketcher.Constraint("DistanceX", 0, 2, -1, 1, 393.0))
sketch6.addConstraint(Sketcher.Constraint("DistanceY", -1, 1, 0, 2, 217.0))
sketch6.addConstraint(Sketcher.Constraint("DistanceY", -1, 1, 4, 2, 194.0))
sketch6.addConstraint(Sketcher.Constraint("DistanceY", -1, 1, 8, 2, 171.0))
sketch6.addConstraint(Sketcher.Constraint("DistanceY", -1, 1, 12, 2, 148.0))
sketch6.addConstraint(Sketcher.Constraint("DistanceY", -1, 1, 16, 2, 125.0))
sketch6.addConstraint(Sketcher.Constraint("DistanceY", -1, 1, 20, 2, 102.0))
sketch6.addConstraint(Sketcher.Constraint("DistanceY", -1, 1, 24, 2, 79.0))
sketch6.addConstraint(Sketcher.Constraint("DistanceY", -1, 1, 28, 2, 56.0))
sketch6.addConstraint(Sketcher.Constraint("DistanceY", -1, 1, 32, 2, 33.0))
sketch6.setExpression("Constraints[207]", "Params.sketch6_width")
sketch6.setExpression("Constraints[208]", "Params.sketch6_height")
pocket3 = doc.addObject("PartDesign::Pocket", "Pocket002")
body.addObject(pocket3)
pocket3.Profile = sketch6
pocket3.setExpression("Length", "Params.pocket3_length")
pocket3.Reversed = True

# Sketch on XZ plane
sketch7 = doc.addObject("Sketcher::SketchObject", "Sketch006")
body.addObject(sketch7)
sketch7.AttachmentSupport = (doc.XZ_Plane, [""])
sketch7.MapMode = "FlatFace"
add_polygon(sketch7, [(-23, -28), (-23, 28), (23, 28), (23, -28)])  # lines 0-3
add_polygon(sketch7, [(20, 25), (-20, 25), (-20, -25), (20, -25)])  # lines 4-7
sketch7.addConstraint(Sketcher.Constraint("Vertical", 0))
sketch7.addConstraint(Sketcher.Constraint("Horizontal", 1))
sketch7.addConstraint(Sketcher.Constraint("Vertical", 2))
sketch7.addConstraint(Sketcher.Constraint("Horizontal", 3))
sketch7.addConstraint(Sketcher.Constraint("Horizontal", 4))
sketch7.addConstraint(Sketcher.Constraint("Vertical", 5))
sketch7.addConstraint(Sketcher.Constraint("Horizontal", 6))
sketch7.addConstraint(Sketcher.Constraint("Vertical", 7))
sketch7.addConstraint(Sketcher.Constraint("Symmetric", 0, 2, 2, 2, -1, 1))
sketch7.addConstraint(Sketcher.Constraint("Symmetric", 4, 2, 6, 2, -1, 1))
sketch7.addConstraint(Sketcher.Constraint("DistanceX", 1, 1, 1, 2, 46.0))
sketch7.addConstraint(Sketcher.Constraint("DistanceX", 4, 2, 4, 1, 40.0))
sketch7.addConstraint(Sketcher.Constraint("DistanceY", 0, 1, 0, 2, 56.0))
sketch7.addConstraint(Sketcher.Constraint("DistanceY", 5, 2, 5, 1, 50.0))
sketch7.setExpression("Constraints[18]", "Params.sketch7_width")
sketch7.setExpression("Constraints[19]", "Params.sketch7_width2")
sketch7.setExpression("Constraints[20]", "Params.sketch7_height")
sketch7.setExpression("Constraints[21]", "Params.sketch7_height2")
pad4 = doc.addObject("PartDesign::Pad", "Pad003")
body.addObject(pad4)
pad4.Profile = sketch7
pad4.setExpression("Length", "Params.pad4_length")
pad4.Reversed = True

# Sketch on YZ plane
sketch8 = doc.addObject("Sketcher::SketchObject", "Sketch007")
body.addObject(sketch8)
sketch8.AttachmentSupport = (doc.YZ_Plane, [""])
sketch8.MapMode = "FlatFace"
sketch8.AttachmentOffset = App.Placement(Vector(0, 0, 23), App.Rotation())
sketch8.addGeometry(Part.Circle(Vector(20, 0, 0), Vector(0, 0, 1), 6), False)
sketch8.addConstraint(Sketcher.Constraint("PointOnObject", 0, 3, -1))
sketch8.addConstraint(Sketcher.Constraint("Diameter", 0, 13.0))
sketch8.addConstraint(Sketcher.Constraint("DistanceX", -1, 1, 0, 3, 20.0))
sketch8.setExpression("Constraints[1]", "Params.sketch8_diameter")
pocket4 = doc.addObject("PartDesign::Pocket", "Pocket003")
body.addObject(pocket4)
pocket4.Profile = sketch8
pocket4.setExpression("Length", "Params.pocket4_length")

doc.recompute()
